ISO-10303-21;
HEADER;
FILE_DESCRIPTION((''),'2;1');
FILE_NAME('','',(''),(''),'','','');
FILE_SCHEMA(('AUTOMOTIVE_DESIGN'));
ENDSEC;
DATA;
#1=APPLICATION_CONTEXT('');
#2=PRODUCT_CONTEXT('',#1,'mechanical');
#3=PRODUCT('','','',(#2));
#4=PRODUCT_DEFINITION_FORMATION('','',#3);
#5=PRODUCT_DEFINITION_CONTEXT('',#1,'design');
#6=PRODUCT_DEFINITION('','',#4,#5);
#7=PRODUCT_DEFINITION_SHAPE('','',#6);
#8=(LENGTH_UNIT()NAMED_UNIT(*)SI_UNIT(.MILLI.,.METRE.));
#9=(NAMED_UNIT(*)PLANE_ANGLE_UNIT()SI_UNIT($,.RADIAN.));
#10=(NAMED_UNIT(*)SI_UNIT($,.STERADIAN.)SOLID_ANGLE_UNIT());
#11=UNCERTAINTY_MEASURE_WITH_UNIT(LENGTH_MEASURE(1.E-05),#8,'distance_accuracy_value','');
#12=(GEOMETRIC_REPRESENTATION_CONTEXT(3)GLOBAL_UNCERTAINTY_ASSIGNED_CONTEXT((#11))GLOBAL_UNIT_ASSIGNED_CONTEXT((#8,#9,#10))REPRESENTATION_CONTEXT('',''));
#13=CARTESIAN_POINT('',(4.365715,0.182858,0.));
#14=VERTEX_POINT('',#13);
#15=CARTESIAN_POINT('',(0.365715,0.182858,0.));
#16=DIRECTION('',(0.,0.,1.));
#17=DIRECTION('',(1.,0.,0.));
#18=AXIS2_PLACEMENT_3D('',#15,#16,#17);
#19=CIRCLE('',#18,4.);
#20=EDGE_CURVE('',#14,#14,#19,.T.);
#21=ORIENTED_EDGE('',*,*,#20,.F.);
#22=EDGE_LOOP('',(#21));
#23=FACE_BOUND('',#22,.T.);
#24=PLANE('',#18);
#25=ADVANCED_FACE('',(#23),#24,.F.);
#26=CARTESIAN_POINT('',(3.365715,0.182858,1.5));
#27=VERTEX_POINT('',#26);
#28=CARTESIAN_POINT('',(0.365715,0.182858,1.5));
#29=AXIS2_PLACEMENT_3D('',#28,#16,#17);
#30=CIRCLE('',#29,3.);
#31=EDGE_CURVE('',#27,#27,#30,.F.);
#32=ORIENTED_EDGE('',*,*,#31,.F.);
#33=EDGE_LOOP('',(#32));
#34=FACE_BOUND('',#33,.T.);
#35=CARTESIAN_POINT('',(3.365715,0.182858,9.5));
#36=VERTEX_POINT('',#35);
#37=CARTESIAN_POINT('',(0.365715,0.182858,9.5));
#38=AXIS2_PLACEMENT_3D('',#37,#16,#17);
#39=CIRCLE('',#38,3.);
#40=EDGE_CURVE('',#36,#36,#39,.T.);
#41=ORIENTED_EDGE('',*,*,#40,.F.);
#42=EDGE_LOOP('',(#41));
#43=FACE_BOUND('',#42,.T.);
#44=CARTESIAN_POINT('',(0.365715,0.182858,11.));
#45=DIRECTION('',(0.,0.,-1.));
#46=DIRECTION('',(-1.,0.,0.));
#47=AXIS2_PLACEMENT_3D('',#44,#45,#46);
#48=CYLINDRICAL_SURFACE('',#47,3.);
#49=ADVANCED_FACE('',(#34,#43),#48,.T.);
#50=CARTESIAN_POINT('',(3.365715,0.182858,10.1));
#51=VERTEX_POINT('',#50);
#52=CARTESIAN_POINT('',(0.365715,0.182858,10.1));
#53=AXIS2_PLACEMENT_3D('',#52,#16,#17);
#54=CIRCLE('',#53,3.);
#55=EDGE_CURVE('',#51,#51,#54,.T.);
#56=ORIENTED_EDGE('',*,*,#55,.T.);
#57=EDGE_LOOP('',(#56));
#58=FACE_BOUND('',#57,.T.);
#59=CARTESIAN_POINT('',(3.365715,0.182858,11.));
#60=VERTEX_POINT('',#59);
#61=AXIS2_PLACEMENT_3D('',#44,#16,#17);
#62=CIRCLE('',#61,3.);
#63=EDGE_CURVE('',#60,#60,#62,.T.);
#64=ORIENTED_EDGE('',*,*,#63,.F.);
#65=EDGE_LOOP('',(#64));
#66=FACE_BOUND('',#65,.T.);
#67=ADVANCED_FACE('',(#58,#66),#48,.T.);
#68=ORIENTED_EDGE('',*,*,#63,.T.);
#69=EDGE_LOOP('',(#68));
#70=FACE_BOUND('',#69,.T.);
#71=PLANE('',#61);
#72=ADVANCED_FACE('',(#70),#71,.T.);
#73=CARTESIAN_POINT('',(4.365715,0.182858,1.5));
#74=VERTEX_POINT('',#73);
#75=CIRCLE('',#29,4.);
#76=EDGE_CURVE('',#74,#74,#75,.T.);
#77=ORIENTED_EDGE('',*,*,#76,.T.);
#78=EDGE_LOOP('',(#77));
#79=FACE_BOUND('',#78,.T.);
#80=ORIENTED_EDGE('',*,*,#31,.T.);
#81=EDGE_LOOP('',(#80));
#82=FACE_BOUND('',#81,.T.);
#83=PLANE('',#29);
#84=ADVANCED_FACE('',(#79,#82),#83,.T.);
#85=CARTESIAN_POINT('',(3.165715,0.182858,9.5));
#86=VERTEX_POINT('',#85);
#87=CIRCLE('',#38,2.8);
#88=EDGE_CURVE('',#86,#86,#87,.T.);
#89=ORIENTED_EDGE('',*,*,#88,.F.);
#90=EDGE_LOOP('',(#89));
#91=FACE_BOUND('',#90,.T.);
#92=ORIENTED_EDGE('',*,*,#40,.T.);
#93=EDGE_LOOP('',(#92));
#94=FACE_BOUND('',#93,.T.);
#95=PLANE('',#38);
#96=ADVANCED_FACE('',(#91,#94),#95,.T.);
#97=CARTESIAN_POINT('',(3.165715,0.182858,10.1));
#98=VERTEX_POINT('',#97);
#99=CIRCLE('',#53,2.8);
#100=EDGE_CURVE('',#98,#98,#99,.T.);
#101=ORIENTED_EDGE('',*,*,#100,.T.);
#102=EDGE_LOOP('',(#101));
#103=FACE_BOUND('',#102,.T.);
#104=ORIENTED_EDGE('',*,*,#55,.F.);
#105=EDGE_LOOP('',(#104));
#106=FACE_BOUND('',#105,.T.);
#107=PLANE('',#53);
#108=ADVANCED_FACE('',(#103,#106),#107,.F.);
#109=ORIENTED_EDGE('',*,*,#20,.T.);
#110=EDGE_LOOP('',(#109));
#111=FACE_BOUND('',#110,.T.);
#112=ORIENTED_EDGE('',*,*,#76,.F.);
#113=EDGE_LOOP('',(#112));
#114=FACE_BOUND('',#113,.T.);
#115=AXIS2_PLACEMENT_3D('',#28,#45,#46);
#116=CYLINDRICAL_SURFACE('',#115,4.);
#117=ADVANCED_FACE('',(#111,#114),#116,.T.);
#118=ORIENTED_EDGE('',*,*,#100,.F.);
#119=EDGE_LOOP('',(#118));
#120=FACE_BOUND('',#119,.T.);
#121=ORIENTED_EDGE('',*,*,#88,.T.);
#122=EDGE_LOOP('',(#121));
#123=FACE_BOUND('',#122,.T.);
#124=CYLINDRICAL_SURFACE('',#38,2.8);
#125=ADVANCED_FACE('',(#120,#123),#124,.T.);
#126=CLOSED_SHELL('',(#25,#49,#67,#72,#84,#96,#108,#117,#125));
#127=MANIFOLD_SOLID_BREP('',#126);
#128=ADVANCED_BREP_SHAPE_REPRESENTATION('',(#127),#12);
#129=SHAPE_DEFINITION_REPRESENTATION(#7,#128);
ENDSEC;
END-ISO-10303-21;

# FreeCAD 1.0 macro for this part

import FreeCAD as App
import Part
import Sketcher
from FreeCAD import Vector
Q = App.Units.Quantity

doc = App.newDocument("Part")
body = doc.addObject("PartDesign::Body", "Body")

sketch1 = body.newObject("Sketcher::SketchObject", "Sketch")
sketch1.AttachmentSupport = (doc.getObject("XY_Plane"), [""])
sketch1.MapMode = "FlatFace"
sketch1.addGeometry(Part.Circle(Vector(0.4, 0.2, 0), Vector(0, 0, 1), 4), False)
sketch1.addConstraint([
    Sketcher.Constraint("Diameter", 0, Q("8 mm")),
    Sketcher.Constraint("DistanceX", -1, 1, 0, 3, Q("0.365715 mm")),
    Sketcher.Constraint("DistanceY", -1, 1, 0, 3, Q("0.182858 mm")),
])
pad1 = body.newObject("PartDesign::Pad", "Pad")
pad1.Profile = sketch1
pad1.Length = 1.5

sketch2 = body.newObject("Sketcher::SketchObject", "Sketch001")
sketch2.AttachmentSupport = (doc.getObject("XY_Plane"), [""])
sketch2.MapMode = "FlatFace"
sketch2.addGeometry(Part.Circle(Vector(0.4, 0.2, 0), Vector(0, 0, 1), 3), False)
sketch2.addConstraint([
    Sketcher.Constraint("Diameter", 0, Q("6 mm")),
    Sketcher.Constraint("DistanceX", -1, 1, 0, 3, Q("0.365715 mm")),
    Sketcher.Constraint("DistanceY", -1, 1, 0, 3, Q("0.182858 mm")),
])
pad2 = body.newObject("PartDesign::Pad", "Pad001")
pad2.Profile = sketch2
pad2.Length = 11

sketch3 = body.newObject("Sketcher::SketchObject", "Sketch002")
sketch3.AttachmentSupport = (doc.getObject("XY_Plane"), [""])
sketch3.MapMode = "FlatFace"
sketch3.AttachmentOffset = App.Placement(Vector(0, 0, 10.1), App.Rotation())
sketch3.addGeometry([
    Part.LineSegment(Vector(-6.2, 6.8, 0), Vector(-6.2, -6.4, 0)),
    Part.LineSegment(Vector(-6.2, -6.4, 0), Vector(6.9, -6.4, 0)),
    Part.LineSegment(Vector(6.9, -6.4, 0), Vector(6.9, 6.8, 0)),
    Part.LineSegment(Vector(6.9, 6.8, 0), Vector(-6.2, 6.8, 0)),
    Part.Circle(Vector(0.4, 0.2, 0), Vector(0, 0, 1), 2.8),
], False)
sketch3.addConstraint([
    Sketcher.Constraint("Coincident", 0, 2, 1, 1),
    Sketcher.Constraint("Coincident", 1, 2, 2, 1),
    Sketcher.Constraint("Coincident", 2, 2, 3, 1),
    Sketcher.Constraint("Coincident", 3, 2, 0, 1),
    Sketcher.Constraint("Vertical", 0),
    Sketcher.Constraint("Horizontal", 1),
    Sketcher.Constraint("Vertical", 2),
    Sketcher.Constraint("Horizontal", 3),
    Sketcher.Constraint("Equal", 3, 0),
    Sketcher.Constraint("Diameter", 4, Q("5.6 mm")),
    Sketcher.Constraint("DistanceX", 1, 1, 1, 2, Q("13.156 mm")),
    Sketcher.Constraint("DistanceX", 0, 2, -1, 1, Q("6.212 mm")),
    Sketcher.Constraint("DistanceY", 0, 2, -1, 1, Q("6.395 mm")),
    Sketcher.Constraint("DistanceX", -1, 1, 4, 3, Q("0.365715 mm")),
    Sketcher.Constraint("DistanceY", -1, 1, 4, 3, Q("0.182858 mm")),
])
pocket1 = body.newObject("PartDesign::Pocket", "Pocket")
pocket1.Profile = sketch3
pocket1.Length = 0.6

doc.recompute()
